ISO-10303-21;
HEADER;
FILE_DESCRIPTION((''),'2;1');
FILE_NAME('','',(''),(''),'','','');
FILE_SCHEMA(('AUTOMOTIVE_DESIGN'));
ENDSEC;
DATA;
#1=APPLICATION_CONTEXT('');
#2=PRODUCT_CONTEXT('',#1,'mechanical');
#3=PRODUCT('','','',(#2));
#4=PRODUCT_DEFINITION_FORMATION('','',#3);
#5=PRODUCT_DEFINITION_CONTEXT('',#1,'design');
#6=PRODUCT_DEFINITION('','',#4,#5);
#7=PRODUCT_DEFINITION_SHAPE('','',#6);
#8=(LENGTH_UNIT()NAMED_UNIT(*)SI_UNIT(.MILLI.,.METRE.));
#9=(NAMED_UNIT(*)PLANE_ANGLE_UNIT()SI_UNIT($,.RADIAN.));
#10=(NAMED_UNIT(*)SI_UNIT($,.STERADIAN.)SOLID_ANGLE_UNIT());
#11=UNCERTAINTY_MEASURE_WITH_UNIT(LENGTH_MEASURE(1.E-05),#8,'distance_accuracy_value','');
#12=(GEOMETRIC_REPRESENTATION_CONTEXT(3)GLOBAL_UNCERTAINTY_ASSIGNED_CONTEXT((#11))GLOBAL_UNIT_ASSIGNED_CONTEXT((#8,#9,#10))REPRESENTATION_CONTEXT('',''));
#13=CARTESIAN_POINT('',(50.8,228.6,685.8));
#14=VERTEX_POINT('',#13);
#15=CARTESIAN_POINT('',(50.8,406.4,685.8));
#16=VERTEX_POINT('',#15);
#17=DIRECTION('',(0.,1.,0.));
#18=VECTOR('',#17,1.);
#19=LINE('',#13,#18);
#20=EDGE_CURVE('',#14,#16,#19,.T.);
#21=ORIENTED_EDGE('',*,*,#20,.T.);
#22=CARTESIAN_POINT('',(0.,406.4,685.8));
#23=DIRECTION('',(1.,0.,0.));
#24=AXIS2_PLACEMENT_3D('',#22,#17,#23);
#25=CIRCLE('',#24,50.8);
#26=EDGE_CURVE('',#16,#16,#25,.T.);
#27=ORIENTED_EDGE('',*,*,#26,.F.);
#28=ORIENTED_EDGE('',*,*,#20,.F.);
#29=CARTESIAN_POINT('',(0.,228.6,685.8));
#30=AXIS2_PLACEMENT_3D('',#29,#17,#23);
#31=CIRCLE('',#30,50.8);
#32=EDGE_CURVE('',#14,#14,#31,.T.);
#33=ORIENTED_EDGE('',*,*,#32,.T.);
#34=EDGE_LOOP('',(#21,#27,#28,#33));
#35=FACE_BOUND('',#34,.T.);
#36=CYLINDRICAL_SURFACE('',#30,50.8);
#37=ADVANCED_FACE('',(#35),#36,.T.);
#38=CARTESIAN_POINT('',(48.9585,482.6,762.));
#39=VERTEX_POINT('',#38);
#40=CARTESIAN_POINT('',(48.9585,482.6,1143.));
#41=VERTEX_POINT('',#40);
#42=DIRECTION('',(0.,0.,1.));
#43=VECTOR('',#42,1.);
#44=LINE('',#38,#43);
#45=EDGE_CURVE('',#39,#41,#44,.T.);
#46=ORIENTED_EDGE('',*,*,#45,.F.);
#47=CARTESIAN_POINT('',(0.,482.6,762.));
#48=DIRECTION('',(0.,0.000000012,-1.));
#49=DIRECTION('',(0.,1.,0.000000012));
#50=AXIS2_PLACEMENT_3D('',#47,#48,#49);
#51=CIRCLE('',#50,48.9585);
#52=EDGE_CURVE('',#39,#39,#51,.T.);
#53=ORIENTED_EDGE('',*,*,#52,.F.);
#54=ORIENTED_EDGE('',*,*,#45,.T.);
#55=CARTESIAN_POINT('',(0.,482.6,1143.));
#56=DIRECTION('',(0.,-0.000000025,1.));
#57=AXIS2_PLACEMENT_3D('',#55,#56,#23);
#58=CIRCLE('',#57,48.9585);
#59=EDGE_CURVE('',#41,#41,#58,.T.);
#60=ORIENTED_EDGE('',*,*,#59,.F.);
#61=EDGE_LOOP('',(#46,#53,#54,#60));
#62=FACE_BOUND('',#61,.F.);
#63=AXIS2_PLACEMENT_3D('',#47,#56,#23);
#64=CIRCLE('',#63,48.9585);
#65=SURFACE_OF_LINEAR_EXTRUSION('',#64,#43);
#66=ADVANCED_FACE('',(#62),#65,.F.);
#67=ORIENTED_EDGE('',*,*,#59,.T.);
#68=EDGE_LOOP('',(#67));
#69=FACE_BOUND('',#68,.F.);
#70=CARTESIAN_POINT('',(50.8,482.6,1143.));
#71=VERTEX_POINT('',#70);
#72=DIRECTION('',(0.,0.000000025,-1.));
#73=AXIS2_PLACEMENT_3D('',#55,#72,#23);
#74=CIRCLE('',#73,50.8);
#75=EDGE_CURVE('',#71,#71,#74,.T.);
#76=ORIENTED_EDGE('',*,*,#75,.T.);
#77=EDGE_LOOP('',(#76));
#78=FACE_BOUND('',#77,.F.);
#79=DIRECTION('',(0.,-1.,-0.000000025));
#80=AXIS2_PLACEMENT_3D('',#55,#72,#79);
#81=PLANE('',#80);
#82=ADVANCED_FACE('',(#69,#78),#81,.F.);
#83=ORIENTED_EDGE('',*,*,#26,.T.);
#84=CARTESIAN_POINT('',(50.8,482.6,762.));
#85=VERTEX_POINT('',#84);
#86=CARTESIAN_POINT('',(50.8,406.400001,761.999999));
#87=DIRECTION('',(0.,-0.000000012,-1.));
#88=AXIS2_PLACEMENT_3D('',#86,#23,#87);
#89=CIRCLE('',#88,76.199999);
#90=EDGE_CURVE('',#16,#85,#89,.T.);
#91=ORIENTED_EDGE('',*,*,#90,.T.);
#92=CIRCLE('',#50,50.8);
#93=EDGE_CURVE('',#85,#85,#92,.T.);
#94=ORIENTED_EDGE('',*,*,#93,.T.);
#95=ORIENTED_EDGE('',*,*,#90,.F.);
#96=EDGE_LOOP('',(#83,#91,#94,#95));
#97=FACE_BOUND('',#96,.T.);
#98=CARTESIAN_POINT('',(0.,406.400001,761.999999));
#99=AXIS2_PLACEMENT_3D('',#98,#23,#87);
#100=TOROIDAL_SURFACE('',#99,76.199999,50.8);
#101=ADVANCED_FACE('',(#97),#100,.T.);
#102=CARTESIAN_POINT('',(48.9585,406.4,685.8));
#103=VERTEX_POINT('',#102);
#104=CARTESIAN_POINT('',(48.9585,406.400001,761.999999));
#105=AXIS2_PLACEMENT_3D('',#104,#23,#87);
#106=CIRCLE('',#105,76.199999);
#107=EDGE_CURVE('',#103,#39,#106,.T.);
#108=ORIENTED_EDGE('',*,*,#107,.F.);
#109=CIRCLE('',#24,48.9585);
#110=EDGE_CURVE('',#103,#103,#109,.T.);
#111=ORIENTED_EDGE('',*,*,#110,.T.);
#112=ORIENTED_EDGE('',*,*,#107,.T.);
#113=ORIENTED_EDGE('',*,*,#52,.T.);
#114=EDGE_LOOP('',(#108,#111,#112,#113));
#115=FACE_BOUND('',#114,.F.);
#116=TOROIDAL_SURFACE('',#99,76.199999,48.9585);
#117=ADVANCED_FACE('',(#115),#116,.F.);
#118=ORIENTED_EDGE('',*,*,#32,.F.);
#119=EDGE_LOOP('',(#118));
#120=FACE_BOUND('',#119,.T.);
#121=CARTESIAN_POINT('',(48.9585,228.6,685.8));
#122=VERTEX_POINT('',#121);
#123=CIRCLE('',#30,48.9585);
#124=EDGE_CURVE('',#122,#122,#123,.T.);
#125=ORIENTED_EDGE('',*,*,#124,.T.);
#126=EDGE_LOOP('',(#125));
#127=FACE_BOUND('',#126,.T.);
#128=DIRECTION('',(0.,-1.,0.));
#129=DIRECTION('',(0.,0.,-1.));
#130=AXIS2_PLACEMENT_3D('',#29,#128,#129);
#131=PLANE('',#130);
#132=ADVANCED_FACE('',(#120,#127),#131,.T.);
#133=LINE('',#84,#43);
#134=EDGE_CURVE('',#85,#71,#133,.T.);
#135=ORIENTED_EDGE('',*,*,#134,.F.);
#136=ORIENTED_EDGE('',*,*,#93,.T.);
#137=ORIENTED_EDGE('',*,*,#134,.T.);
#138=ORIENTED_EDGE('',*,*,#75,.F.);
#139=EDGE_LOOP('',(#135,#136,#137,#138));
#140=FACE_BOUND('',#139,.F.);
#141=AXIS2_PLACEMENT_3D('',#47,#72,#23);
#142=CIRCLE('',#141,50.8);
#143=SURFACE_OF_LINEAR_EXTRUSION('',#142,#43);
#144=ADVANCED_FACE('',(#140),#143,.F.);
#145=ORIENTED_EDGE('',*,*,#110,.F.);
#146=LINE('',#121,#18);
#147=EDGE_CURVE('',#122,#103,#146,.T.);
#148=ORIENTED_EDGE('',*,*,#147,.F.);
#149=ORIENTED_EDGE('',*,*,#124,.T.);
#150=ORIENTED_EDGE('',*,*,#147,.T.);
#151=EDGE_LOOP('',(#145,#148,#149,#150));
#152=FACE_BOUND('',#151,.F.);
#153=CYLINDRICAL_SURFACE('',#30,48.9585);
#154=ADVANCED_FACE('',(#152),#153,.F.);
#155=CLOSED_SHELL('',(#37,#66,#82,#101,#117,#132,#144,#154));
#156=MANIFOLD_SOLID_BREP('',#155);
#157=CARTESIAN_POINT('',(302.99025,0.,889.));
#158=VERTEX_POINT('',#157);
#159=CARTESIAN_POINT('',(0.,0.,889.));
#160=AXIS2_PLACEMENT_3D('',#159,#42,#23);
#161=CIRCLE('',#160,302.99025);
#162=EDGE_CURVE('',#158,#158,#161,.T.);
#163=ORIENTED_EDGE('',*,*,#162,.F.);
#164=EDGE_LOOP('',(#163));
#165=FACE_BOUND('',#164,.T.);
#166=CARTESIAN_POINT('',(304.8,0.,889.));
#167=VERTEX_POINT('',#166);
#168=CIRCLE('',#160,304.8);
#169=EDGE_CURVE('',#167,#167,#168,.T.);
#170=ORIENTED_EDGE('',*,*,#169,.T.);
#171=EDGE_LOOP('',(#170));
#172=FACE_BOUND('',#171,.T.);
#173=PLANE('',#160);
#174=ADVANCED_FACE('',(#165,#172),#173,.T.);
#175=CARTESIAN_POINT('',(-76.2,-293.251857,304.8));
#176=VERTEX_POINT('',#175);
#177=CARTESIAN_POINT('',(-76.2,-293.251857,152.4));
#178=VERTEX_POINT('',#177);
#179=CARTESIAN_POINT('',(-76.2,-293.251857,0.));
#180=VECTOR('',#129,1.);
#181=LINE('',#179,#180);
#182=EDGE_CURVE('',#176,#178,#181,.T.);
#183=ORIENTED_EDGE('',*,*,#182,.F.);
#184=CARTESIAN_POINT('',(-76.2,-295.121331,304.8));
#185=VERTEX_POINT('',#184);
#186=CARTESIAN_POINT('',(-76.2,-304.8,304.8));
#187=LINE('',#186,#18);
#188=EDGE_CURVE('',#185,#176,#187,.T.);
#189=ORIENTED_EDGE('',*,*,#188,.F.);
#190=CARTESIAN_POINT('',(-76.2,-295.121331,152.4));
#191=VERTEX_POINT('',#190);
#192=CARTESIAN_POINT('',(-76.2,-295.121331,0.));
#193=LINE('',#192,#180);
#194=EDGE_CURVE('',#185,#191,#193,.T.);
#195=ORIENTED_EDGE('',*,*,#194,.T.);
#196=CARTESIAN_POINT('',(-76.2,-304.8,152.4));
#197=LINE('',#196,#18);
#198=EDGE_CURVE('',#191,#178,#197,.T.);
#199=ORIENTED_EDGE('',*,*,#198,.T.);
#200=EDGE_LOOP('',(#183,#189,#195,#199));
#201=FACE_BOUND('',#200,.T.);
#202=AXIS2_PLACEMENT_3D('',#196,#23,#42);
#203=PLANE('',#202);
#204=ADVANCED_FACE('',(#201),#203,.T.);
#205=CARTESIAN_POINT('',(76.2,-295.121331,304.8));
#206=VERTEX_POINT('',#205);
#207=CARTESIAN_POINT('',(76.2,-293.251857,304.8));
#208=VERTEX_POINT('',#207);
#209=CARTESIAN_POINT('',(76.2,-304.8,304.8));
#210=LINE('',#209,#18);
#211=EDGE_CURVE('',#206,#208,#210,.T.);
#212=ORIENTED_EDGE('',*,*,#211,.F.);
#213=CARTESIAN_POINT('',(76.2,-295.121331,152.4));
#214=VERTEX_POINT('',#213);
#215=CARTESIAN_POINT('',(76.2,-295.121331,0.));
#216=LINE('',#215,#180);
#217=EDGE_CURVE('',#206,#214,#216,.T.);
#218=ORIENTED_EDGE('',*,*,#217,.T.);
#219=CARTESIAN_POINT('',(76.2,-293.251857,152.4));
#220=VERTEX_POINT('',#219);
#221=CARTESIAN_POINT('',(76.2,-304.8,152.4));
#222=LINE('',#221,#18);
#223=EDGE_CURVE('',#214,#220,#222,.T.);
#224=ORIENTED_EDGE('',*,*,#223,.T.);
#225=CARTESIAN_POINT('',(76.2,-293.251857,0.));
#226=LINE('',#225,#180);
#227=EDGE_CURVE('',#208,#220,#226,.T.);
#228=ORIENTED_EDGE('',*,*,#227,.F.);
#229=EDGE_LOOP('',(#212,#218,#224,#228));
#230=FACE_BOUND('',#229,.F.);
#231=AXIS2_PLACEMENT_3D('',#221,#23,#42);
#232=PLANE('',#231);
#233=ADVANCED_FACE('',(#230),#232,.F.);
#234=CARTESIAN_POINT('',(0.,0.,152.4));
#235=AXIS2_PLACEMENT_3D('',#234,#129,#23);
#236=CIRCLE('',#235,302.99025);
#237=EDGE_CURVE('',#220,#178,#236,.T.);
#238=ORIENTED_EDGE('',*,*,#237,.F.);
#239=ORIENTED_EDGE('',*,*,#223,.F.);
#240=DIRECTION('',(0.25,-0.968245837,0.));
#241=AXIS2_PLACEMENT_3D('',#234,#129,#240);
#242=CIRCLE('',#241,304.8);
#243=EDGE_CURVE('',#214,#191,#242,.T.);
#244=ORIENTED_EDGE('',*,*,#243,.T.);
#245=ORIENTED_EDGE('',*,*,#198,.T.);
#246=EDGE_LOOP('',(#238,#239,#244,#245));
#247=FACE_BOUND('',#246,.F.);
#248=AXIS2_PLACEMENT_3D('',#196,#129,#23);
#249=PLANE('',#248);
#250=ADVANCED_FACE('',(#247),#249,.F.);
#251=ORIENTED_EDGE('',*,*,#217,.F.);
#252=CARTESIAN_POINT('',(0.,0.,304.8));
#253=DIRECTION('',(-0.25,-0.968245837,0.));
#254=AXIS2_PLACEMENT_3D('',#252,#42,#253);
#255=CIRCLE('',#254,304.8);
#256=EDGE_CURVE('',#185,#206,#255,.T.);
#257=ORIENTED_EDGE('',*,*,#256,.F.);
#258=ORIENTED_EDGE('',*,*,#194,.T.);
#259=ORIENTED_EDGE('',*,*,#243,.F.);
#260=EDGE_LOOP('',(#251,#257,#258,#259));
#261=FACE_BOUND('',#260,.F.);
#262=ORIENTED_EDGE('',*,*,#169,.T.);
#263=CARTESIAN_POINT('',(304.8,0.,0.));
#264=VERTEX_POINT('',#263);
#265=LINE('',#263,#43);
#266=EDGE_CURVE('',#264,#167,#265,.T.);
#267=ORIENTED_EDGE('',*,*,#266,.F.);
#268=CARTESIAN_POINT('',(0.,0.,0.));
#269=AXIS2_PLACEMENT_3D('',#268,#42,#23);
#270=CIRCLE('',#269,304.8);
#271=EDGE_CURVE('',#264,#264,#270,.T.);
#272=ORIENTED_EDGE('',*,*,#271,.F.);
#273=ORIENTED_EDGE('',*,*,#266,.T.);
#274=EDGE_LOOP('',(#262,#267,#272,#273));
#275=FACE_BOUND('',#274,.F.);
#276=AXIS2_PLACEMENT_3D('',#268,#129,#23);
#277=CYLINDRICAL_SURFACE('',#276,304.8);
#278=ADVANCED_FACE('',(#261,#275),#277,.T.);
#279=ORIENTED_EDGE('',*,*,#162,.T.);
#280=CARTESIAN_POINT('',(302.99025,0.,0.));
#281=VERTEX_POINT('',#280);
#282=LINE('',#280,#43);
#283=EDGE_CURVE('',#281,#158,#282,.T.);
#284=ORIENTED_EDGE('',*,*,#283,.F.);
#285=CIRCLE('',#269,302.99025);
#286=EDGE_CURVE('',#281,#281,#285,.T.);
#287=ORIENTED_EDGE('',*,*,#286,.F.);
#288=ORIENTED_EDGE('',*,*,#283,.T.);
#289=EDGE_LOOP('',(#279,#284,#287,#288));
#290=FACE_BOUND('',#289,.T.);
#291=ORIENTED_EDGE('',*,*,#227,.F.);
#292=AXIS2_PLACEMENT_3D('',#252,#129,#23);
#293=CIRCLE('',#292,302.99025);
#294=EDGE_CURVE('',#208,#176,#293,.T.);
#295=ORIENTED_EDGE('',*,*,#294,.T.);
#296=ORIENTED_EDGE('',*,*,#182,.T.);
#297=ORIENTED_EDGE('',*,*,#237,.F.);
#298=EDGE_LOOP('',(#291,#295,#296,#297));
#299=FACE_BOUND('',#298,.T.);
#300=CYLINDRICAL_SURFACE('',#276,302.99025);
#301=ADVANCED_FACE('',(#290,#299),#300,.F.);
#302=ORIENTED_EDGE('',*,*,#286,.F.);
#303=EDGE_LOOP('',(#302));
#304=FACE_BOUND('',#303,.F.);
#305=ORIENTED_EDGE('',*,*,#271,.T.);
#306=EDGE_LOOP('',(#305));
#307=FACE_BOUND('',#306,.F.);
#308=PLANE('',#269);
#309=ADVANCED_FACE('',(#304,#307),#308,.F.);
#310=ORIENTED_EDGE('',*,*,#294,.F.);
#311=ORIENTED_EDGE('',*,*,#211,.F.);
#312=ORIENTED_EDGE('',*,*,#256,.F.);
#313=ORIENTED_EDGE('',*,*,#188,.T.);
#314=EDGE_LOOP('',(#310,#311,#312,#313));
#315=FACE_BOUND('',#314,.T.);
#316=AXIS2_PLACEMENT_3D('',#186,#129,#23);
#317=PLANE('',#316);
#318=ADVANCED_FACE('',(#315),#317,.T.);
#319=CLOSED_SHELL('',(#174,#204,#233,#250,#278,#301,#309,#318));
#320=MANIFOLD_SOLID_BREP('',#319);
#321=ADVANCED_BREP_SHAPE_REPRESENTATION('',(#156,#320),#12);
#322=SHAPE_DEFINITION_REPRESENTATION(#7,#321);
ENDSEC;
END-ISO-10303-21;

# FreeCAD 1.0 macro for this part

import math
import FreeCAD as App
import Part
import Sketcher

V = App.Vector
Q = App.Units.Quantity

doc = App.newDocument("Part")
body = doc.addObject("PartDesign::Body", "Body")

# Sketch on XY plane
sketch1 = body.newObject("Sketcher::SketchObject", "Sketch")
sketch1.AttachmentSupport = (doc.getObject("XY_Plane"), [""])
sketch1.MapMode = "FlatFace"
sketch1.addGeometry([
    Part.Circle(V(0, 0, 0), V(0, 0, 1), 304.8),
    Part.Circle(V(0, 0, 0), V(0, 0, 1), 302.99025),
], False)
sketch1.addConstraint([
    Sketcher.Constraint("Coincident", 0, 3, -1, 1),
    Sketcher.Constraint("Coincident", 1, 3, -1, 1),
    Sketcher.Constraint("Diameter", 0, Q("24 in")),
    Sketcher.Constraint("Diameter", 1, Q("23.8575 in")),
])
pad1 = body.newObject("PartDesign::Pad", "Pad")
pad1.Profile = sketch1
pad1.Length = Q("35 in")

# Sketch on XZ plane
sketch2 = body.newObject("Sketcher::SketchObject", "Sketch001")
sketch2.AttachmentSupport = (doc.getObject("XZ_Plane"), [""])
sketch2.MapMode = "FlatFace"
sketch2.AttachmentOffset = App.Placement(V(0, 0, 12 * 25.4), App.Rotation())
sketch2.addGeometry([
    Part.LineSegment(V(-76.2, 304.8, 0), V(-76.2, 152.4, 0)),
    Part.LineSegment(V(-76.2, 152.4, 0), V(76.2, 152.4, 0)),
    Part.LineSegment(V(76.2, 152.4, 0), V(76.2, 304.8, 0)),
    Part.LineSegment(V(76.2, 304.8, 0), V(-76.2, 304.8, 0)),
], False)
sketch2.addConstraint([
    Sketcher.Constraint("Coincident", 0, 2, 1, 1),
    Sketcher.Constraint("Coincident", 1, 2, 2, 1),
    Sketcher.Constraint("Coincident", 2, 2, 3, 1),
    Sketcher.Constraint("Coincident", 3, 2, 0, 1),
    Sketcher.Constraint("Vertical", 0),
    Sketcher.Constraint("Horizontal", 1),
    Sketcher.Constraint("Vertical", 2),
    Sketcher.Constraint("Horizontal", 3),
    Sketcher.Constraint("Equal", 3, 0),
    Sketcher.Constraint("DistanceX", 1, 1, 1, 2, Q("6 in")),
    Sketcher.Constraint("DistanceX", 0, 2, -1, 1, Q("3 in")),
    Sketcher.Constraint("DistanceY", -1, 1, 0, 2, Q("6 in")),
])
pocket1 = body.newObject("PartDesign::Pocket", "Pocket")
pocket1.Profile = sketch2
pocket1.Length = Q("1 in")
body2 = doc.addObject("PartDesign::Body", "Body001")

# Sketch on XZ plane
sketch3 = body2.newObject("Sketcher::SketchObject", "Sketch002")
sketch3.AttachmentSupport = (doc.getObject("XZ_Plane001"), [""])
sketch3.MapMode = "FlatFace"
sketch3.AttachmentOffset = App.Placement(V(0, 0, -9 * 25.4), App.Rotation())
sketch3.addGeometry([
    Part.Circle(V(0, 685.8, 0), V(0, 0, 1), 50.8),
    Part.Circle(V(0, 685.8, 0), V(0, 0, 1), 48.9585),
], False)
sketch3.addConstraint([
    Sketcher.Constraint("Coincident", 1, 3, 0, 3),
    Sketcher.Constraint("PointOnObject", 0, 3, -2),
    Sketcher.Constraint("Diameter", 0, Q("4 in")),
    Sketcher.Constraint("Diameter", 1, Q("3.855 in")),
    Sketcher.Constraint("DistanceY", -1, 1, 0, 3, Q("27 in")),
])

# Sketch on YZ plane
sketch4 = body2.newObject("Sketcher::SketchObject", "Sketch003")
sketch4.AttachmentSupport = (doc.getObject("YZ_Plane001"), [""])
sketch4.MapMode = "FlatFace"
sketch4.addGeometry([
    Part.LineSegment(V(228.6, 685.8, 0), V(406.4, 685.8, 0)),
    Part.ArcOfCircle(Part.Circle(V(406.400001, 761.999999, 0), V(0, 0, 1), 76.199999), math.radians(-90.000001), math.radians(0.000001)),
    Part.LineSegment(V(482.6, 762, 0), V(482.6, 1143, 0)),
], False)
sketch4.addConstraint([
    Sketcher.Constraint("Tangent", 0, 2, 1, 1),
    Sketcher.Constraint("Tangent", 1, 2, 2, 1),
    Sketcher.Constraint("Horizontal", 0),
    Sketcher.Constraint("Vertical", 2),
    Sketcher.Constraint("Radius", 1, Q("3 in")),
    Sketcher.Constraint("DistanceX", 0, 1, 0, 2, Q("7 in")),
    Sketcher.Constraint("DistanceY", 2, 1, 2, 2, Q("15 in")),
    Sketcher.Constraint("DistanceX", -1, 1, 1, 3, Q("16 in")),
    Sketcher.Constraint("DistanceY", -1, 1, 1, 3, Q("30 in")),
])
doc.recompute()

additivepipe = body2.newObject("PartDesign::AdditivePipe", "AdditivePipe")
additivepipe.Profile = sketch3
additivepipe.Spine = (sketch4, ["Edge1", "Edge2", "Edge3"])

doc.recompute()
